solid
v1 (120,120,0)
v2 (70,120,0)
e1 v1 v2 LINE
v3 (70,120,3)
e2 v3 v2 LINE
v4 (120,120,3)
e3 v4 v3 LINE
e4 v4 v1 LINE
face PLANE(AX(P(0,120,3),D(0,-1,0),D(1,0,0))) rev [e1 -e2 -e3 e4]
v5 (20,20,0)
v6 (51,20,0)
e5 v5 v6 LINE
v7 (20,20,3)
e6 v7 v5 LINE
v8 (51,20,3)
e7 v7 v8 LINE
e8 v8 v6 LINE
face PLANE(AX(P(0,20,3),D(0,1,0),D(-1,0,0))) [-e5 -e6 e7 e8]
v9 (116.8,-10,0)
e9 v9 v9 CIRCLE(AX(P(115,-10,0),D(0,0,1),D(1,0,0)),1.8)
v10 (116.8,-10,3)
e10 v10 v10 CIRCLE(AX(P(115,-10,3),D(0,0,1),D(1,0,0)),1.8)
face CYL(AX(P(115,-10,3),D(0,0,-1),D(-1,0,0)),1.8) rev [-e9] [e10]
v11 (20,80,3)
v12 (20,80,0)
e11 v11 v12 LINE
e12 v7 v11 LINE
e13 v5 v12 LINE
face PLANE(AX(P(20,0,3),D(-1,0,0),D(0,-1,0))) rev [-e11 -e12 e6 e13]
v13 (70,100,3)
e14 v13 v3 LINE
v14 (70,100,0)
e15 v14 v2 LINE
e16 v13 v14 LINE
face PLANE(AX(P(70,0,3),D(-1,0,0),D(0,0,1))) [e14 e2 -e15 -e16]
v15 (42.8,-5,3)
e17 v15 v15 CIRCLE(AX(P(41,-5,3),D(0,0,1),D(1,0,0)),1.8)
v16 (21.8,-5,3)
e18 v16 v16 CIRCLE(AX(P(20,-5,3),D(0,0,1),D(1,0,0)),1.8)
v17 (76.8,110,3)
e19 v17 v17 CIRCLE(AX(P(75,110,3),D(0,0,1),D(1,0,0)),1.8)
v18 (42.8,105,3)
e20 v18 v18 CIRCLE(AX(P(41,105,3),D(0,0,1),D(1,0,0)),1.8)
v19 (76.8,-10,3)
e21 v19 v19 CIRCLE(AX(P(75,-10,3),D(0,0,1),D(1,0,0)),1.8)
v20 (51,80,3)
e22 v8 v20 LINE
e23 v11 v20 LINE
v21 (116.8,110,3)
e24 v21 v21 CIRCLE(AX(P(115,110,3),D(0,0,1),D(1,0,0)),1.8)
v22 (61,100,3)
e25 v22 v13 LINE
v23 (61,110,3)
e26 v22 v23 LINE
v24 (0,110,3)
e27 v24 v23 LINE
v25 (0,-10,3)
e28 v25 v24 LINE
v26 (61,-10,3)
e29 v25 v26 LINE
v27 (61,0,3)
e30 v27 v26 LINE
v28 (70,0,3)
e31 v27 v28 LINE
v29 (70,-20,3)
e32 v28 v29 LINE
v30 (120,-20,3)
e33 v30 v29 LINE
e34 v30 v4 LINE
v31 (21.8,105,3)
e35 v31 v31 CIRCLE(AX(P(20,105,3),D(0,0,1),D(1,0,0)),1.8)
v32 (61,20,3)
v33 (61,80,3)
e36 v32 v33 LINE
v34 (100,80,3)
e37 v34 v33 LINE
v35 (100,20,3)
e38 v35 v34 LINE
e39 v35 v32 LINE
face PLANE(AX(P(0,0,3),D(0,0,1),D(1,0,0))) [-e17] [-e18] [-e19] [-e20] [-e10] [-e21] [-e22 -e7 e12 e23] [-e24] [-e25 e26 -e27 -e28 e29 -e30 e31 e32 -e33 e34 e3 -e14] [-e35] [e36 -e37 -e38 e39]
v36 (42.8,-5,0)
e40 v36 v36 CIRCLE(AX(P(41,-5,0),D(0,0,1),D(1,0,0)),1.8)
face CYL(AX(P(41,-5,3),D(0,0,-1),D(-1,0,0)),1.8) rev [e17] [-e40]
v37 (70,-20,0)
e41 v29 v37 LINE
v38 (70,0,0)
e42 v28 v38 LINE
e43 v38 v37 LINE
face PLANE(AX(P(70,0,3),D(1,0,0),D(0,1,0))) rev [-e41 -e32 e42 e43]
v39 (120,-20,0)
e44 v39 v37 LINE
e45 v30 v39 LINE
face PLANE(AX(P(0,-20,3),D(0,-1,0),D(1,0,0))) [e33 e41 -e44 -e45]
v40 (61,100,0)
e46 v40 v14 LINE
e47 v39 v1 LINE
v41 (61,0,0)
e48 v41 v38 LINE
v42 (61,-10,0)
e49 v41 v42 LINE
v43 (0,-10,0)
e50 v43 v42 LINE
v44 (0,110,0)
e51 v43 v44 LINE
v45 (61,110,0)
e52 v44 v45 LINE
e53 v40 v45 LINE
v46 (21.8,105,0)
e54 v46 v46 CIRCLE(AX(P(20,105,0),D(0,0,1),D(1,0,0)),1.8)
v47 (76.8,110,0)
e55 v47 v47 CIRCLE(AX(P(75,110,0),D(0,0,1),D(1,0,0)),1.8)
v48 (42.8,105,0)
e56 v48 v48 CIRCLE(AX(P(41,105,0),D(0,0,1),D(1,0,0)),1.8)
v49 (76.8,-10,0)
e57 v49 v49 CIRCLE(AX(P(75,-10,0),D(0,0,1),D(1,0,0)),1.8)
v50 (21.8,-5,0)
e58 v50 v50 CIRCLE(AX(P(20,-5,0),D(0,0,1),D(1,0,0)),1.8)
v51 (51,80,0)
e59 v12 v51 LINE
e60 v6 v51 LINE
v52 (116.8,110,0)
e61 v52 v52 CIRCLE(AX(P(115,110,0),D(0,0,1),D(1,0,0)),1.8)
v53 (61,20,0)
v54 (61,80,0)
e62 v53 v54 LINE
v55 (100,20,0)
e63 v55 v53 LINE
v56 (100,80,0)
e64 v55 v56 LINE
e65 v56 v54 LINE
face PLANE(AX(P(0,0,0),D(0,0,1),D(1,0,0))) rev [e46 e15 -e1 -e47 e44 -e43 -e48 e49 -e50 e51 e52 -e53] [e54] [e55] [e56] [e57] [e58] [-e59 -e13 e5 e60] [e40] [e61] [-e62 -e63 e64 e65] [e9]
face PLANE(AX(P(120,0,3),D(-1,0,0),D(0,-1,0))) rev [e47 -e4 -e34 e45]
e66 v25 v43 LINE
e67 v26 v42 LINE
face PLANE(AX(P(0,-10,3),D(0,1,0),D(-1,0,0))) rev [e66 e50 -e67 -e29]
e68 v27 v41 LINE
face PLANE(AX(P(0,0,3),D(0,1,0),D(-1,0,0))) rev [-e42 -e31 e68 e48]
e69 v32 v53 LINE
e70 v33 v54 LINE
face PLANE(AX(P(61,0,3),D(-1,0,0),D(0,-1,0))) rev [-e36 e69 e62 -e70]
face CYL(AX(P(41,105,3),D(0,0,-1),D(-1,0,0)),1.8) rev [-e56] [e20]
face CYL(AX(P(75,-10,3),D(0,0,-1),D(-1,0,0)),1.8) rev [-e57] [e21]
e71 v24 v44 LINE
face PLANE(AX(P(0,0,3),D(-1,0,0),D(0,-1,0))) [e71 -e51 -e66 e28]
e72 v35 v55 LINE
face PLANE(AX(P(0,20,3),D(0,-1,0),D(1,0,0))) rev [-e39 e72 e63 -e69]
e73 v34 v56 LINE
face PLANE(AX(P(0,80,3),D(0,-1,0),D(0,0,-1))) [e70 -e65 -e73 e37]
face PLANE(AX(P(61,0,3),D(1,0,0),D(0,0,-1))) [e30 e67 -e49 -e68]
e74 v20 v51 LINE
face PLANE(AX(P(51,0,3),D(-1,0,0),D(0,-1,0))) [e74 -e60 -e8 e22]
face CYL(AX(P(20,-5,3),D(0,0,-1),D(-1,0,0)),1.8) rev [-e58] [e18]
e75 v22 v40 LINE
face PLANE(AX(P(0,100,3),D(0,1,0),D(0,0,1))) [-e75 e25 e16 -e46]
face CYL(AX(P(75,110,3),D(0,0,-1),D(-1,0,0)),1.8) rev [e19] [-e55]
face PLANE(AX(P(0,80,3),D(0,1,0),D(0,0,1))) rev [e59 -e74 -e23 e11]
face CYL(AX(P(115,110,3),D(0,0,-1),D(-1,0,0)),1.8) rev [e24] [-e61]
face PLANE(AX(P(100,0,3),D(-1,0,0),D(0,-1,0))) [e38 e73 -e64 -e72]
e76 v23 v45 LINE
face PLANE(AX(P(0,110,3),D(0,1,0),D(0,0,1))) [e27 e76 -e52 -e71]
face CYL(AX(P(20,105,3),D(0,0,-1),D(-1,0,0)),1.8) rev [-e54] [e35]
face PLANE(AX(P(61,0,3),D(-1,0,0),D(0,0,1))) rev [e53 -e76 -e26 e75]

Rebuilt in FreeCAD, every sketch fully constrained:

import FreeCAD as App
import Part
import Sketcher
Q = App.Units.Quantity

doc = App.newDocument("Part")
body = doc.addObject("PartDesign::Body", "Body")

# Sketch on XY plane
sketch1 = body.newObject("Sketcher::SketchObject", "Sketch")
sketch1.AttachmentSupport = (doc.getObject("XY_Plane"), [""])
sketch1.MapMode = "FlatFace"
sketch1.addGeometry([
    Part.LineSegment(App.Vector(0, -10, 0), App.Vector(61, -10, 0)),  # 0
    Part.LineSegment(App.Vector(61, -10, 0), App.Vector(61, 0, 0)),  # 1
    Part.LineSegment(App.Vector(61, 0, 0), App.Vector(70, 0, 0)),  # 2
    Part.LineSegment(App.Vector(70, 0, 0), App.Vector(70, -20, 0)),  # 3
    Part.LineSegment(App.Vector(70, -20, 0), App.Vector(120, -20, 0)),  # 4
    Part.LineSegment(App.Vector(120, -20, 0), App.Vector(120, 120, 0)),  # 5
    Part.LineSegment(App.Vector(120, 120, 0), App.Vector(70, 120, 0)),  # 6
    Part.LineSegment(App.Vector(70, 120, 0), App.Vector(70, 100, 0)),  # 7
    Part.LineSegment(App.Vector(70, 100, 0), App.Vector(61, 100, 0)),  # 8
    Part.LineSegment(App.Vector(61, 100, 0), App.Vector(61, 110, 0)),  # 9
    Part.LineSegment(App.Vector(61, 110, 0), App.Vector(0, 110, 0)),  # 10
    Part.LineSegment(App.Vector(0, 110, 0), App.Vector(0, -10, 0)),  # 11
    Part.LineSegment(App.Vector(51, 20, 0), App.Vector(20, 20, 0)),  # 12
    Part.LineSegment(App.Vector(20, 20, 0), App.Vector(20, 80, 0)),  # 13
    Part.LineSegment(App.Vector(20, 80, 0), App.Vector(51, 80, 0)),  # 14
    Part.LineSegment(App.Vector(51, 80, 0), App.Vector(51, 20, 0)),  # 15
    Part.LineSegment(App.Vector(100, 20, 0), App.Vector(61, 20, 0)),  # 16
    Part.LineSegment(App.Vector(61, 20, 0), App.Vector(61, 80, 0)),  # 17
    Part.LineSegment(App.Vector(61, 80, 0), App.Vector(100, 80, 0)),  # 18
    Part.LineSegment(App.Vector(100, 80, 0), App.Vector(100, 20, 0)),  # 19
    Part.Circle(App.Vector(41, -5, 0), App.Vector(0, 0, 1), 1.8),  # 20
    Part.Circle(App.Vector(20, -5, 0), App.Vector(0, 0, 1), 1.8),  # 21
    Part.Circle(App.Vector(115, -10, 0), App.Vector(0, 0, 1), 1.8),  # 22
    Part.Circle(App.Vector(75, -10, 0), App.Vector(0, 0, 1), 1.8),  # 23
    Part.Circle(App.Vector(41, 105, 0), App.Vector(0, 0, 1), 1.8),  # 24
    Part.Circle(App.Vector(20, 105, 0), App.Vector(0, 0, 1), 1.8),  # 25
    Part.Circle(App.Vector(115, 110, 0), App.Vector(0, 0, 1), 1.8),  # 26
    Part.Circle(App.Vector(75, 110, 0), App.Vector(0, 0, 1), 1.8),  # 27
], False)
sketch1.addConstraint([
    Sketcher.Constraint("Coincident", 0, 2, 1, 1),
    Sketcher.Constraint("Coincident", 1, 2, 2, 1),
    Sketcher.Constraint("Coincident", 2, 2, 3, 1),
    Sketcher.Constraint("Coincident", 3, 2, 4, 1),
    Sketcher.Constraint("Coincident", 4, 2, 5, 1),
    Sketcher.Constraint("Coincident", 5, 2, 6, 1),
    Sketcher.Constraint("Coincident", 6, 2, 7, 1),
    Sketcher.Constraint("Coincident", 7, 2, 8, 1),
    Sketcher.Constraint("Coincident", 8, 2, 9, 1),
    Sketcher.Constraint("Coincident", 9, 2, 10, 1),
    Sketcher.Constraint("Coincident", 10, 2, 11, 1),
    Sketcher.Constraint("Coincident", 11, 2, 0, 1),
    Sketcher.Constraint("Coincident", 12, 2, 13, 1),
    Sketcher.Constraint("Coincident", 13, 2, 14, 1),
    Sketcher.Constraint("Coincident", 14, 2, 15, 1),
    Sketcher.Constraint("Coincident", 15, 2, 12, 1),
    Sketcher.Constraint("Coincident", 16, 2, 17, 1),
    Sketcher.Constraint("Coincident", 17, 2, 18, 1),
    Sketcher.Constraint("Coincident", 18, 2, 19, 1),
    Sketcher.Constraint("Coincident", 19, 2, 16, 1),
    Sketcher.Constraint("Horizontal", 0),
    Sketcher.Constraint("Vertical", 1),
    Sketcher.Constraint("Horizontal", 2),
    Sketcher.Constraint("Vertical", 3),
    Sketcher.Constraint("Horizontal", 4),
    Sketcher.Constraint("Vertical", 5),
    Sketcher.Constraint("Horizontal", 6),
    Sketcher.Constraint("Vertical", 7),
    Sketcher.Constraint("Horizontal", 8),
    Sketcher.Constraint("Vertical", 9),
    Sketcher.Constraint("Horizontal", 10),
    Sketcher.Constraint("Vertical", 11),
    Sketcher.Constraint("Horizontal", 12),
    Sketcher.Constraint("Vertical", 13),
    Sketcher.Constraint("Horizontal", 14),
    Sketcher.Constraint("Vertical", 15),
    Sketcher.Constraint("Horizontal", 16),
    Sketcher.Constraint("Vertical", 17),
    Sketcher.Constraint("Horizontal", 18),
    Sketcher.Constraint("Vertical", 19),
    Sketcher.Constraint("Equal", 20, 21),
    Sketcher.Constraint("Equal", 21, 22),
    Sketcher.Constraint("Equal", 22, 23),
    Sketcher.Constraint("Equal", 23, 24),
    Sketcher.Constraint("Equal", 24, 25),
    Sketcher.Constraint("Equal", 25, 26),
    Sketcher.Constraint("Equal", 26, 27),
    Sketcher.Constraint("PointOnObject", 1, 2, -1),
    Sketcher.Constraint("PointOnObject", 10, 2, -2),
    Sketcher.Constraint("Horizontal", 20, 3, 21, 3),
    Sketcher.Constraint("Horizontal", 22, 3, 23, 3),
    Sketcher.Constraint("Horizontal", 24, 3, 25, 3),
    Sketcher.Constraint("Horizontal", 26, 3, 27, 3),
    Sketcher.Constraint("Horizontal", 23, 3, 0, 2),
    Sketcher.Constraint("Horizontal", 27, 3, 9, 2),
    Sketcher.Constraint("Horizontal", 15, 2, 16, 2),
    Sketcher.Constraint("Horizontal", 14, 2, 17, 2),
    Sketcher.Constraint("Vertical", 20, 3, 24, 3),
    Sketcher.Constraint("Vertical", 21, 3, 25, 3),
    Sketcher.Constraint("Vertical", 22, 3, 26, 3),
    Sketcher.Constraint("Vertical", 23, 3, 27, 3),
    Sketcher.Constraint("Vertical", 3, 2, 6, 2),
    Sketcher.Constraint("Vertical", 1, 2, 8, 2),
    Sketcher.Constraint("Vertical", 25, 3, 12, 2),
    Sketcher.Constraint("Vertical", 9, 2, 16, 2),
    Sketcher.Constraint("Equal", 3, 7),
    Sketcher.Constraint("Equal", 1, 9),
    Sketcher.Constraint("Diameter", 20, Q("3.6 mm")),
    Sketcher.Constraint("DistanceX", 0, 1, 0, 2, Q("61 mm")),
    Sketcher.Constraint("DistanceX", 2, 1, 2, 2, Q("9 mm")),
    Sketcher.Constraint("DistanceX", 4, 1, 4, 2, Q("50 mm")),
    Sketcher.Constraint("DistanceX", 12, 2, 12, 1, Q("31 mm")),
    Sketcher.Constraint("DistanceX", 16, 2, 16, 1, Q("39 mm")),
    Sketcher.Constraint("DistanceY", 1, 1, 1, 2, Q("10 mm")),
    Sketcher.Constraint("DistanceY", 3, 2, 3, 1, Q("20 mm")),
    Sketcher.Constraint("DistanceY", 5, 1, 5, 2, Q("140 mm")),
    Sketcher.Constraint("DistanceY", 13, 1, 13, 2, Q("60 mm")),
    Sketcher.Constraint("DistanceX", -1, 1, 20, 3, Q("41 mm")),
    Sketcher.Constraint("DistanceY", 20, 3, -1, 1, Q("5 mm")),
    Sketcher.Constraint("DistanceX", -1, 1, 21, 3, Q("20 mm")),
    Sketcher.Constraint("DistanceX", -1, 1, 22, 3, Q("115 mm")),
    Sketcher.Constraint("DistanceX", -1, 1, 23, 3, Q("75 mm")),
    Sketcher.Constraint("DistanceY", -1, 1, 24, 3, Q("105 mm")),
    Sketcher.Constraint("DistanceY", -1, 1, 12, 2, Q("20 mm")),
])
pad1 = body.newObject("PartDesign::Pad", "Pad")
pad1.Profile = sketch1
pad1.Length = 3

doc.recompute()
